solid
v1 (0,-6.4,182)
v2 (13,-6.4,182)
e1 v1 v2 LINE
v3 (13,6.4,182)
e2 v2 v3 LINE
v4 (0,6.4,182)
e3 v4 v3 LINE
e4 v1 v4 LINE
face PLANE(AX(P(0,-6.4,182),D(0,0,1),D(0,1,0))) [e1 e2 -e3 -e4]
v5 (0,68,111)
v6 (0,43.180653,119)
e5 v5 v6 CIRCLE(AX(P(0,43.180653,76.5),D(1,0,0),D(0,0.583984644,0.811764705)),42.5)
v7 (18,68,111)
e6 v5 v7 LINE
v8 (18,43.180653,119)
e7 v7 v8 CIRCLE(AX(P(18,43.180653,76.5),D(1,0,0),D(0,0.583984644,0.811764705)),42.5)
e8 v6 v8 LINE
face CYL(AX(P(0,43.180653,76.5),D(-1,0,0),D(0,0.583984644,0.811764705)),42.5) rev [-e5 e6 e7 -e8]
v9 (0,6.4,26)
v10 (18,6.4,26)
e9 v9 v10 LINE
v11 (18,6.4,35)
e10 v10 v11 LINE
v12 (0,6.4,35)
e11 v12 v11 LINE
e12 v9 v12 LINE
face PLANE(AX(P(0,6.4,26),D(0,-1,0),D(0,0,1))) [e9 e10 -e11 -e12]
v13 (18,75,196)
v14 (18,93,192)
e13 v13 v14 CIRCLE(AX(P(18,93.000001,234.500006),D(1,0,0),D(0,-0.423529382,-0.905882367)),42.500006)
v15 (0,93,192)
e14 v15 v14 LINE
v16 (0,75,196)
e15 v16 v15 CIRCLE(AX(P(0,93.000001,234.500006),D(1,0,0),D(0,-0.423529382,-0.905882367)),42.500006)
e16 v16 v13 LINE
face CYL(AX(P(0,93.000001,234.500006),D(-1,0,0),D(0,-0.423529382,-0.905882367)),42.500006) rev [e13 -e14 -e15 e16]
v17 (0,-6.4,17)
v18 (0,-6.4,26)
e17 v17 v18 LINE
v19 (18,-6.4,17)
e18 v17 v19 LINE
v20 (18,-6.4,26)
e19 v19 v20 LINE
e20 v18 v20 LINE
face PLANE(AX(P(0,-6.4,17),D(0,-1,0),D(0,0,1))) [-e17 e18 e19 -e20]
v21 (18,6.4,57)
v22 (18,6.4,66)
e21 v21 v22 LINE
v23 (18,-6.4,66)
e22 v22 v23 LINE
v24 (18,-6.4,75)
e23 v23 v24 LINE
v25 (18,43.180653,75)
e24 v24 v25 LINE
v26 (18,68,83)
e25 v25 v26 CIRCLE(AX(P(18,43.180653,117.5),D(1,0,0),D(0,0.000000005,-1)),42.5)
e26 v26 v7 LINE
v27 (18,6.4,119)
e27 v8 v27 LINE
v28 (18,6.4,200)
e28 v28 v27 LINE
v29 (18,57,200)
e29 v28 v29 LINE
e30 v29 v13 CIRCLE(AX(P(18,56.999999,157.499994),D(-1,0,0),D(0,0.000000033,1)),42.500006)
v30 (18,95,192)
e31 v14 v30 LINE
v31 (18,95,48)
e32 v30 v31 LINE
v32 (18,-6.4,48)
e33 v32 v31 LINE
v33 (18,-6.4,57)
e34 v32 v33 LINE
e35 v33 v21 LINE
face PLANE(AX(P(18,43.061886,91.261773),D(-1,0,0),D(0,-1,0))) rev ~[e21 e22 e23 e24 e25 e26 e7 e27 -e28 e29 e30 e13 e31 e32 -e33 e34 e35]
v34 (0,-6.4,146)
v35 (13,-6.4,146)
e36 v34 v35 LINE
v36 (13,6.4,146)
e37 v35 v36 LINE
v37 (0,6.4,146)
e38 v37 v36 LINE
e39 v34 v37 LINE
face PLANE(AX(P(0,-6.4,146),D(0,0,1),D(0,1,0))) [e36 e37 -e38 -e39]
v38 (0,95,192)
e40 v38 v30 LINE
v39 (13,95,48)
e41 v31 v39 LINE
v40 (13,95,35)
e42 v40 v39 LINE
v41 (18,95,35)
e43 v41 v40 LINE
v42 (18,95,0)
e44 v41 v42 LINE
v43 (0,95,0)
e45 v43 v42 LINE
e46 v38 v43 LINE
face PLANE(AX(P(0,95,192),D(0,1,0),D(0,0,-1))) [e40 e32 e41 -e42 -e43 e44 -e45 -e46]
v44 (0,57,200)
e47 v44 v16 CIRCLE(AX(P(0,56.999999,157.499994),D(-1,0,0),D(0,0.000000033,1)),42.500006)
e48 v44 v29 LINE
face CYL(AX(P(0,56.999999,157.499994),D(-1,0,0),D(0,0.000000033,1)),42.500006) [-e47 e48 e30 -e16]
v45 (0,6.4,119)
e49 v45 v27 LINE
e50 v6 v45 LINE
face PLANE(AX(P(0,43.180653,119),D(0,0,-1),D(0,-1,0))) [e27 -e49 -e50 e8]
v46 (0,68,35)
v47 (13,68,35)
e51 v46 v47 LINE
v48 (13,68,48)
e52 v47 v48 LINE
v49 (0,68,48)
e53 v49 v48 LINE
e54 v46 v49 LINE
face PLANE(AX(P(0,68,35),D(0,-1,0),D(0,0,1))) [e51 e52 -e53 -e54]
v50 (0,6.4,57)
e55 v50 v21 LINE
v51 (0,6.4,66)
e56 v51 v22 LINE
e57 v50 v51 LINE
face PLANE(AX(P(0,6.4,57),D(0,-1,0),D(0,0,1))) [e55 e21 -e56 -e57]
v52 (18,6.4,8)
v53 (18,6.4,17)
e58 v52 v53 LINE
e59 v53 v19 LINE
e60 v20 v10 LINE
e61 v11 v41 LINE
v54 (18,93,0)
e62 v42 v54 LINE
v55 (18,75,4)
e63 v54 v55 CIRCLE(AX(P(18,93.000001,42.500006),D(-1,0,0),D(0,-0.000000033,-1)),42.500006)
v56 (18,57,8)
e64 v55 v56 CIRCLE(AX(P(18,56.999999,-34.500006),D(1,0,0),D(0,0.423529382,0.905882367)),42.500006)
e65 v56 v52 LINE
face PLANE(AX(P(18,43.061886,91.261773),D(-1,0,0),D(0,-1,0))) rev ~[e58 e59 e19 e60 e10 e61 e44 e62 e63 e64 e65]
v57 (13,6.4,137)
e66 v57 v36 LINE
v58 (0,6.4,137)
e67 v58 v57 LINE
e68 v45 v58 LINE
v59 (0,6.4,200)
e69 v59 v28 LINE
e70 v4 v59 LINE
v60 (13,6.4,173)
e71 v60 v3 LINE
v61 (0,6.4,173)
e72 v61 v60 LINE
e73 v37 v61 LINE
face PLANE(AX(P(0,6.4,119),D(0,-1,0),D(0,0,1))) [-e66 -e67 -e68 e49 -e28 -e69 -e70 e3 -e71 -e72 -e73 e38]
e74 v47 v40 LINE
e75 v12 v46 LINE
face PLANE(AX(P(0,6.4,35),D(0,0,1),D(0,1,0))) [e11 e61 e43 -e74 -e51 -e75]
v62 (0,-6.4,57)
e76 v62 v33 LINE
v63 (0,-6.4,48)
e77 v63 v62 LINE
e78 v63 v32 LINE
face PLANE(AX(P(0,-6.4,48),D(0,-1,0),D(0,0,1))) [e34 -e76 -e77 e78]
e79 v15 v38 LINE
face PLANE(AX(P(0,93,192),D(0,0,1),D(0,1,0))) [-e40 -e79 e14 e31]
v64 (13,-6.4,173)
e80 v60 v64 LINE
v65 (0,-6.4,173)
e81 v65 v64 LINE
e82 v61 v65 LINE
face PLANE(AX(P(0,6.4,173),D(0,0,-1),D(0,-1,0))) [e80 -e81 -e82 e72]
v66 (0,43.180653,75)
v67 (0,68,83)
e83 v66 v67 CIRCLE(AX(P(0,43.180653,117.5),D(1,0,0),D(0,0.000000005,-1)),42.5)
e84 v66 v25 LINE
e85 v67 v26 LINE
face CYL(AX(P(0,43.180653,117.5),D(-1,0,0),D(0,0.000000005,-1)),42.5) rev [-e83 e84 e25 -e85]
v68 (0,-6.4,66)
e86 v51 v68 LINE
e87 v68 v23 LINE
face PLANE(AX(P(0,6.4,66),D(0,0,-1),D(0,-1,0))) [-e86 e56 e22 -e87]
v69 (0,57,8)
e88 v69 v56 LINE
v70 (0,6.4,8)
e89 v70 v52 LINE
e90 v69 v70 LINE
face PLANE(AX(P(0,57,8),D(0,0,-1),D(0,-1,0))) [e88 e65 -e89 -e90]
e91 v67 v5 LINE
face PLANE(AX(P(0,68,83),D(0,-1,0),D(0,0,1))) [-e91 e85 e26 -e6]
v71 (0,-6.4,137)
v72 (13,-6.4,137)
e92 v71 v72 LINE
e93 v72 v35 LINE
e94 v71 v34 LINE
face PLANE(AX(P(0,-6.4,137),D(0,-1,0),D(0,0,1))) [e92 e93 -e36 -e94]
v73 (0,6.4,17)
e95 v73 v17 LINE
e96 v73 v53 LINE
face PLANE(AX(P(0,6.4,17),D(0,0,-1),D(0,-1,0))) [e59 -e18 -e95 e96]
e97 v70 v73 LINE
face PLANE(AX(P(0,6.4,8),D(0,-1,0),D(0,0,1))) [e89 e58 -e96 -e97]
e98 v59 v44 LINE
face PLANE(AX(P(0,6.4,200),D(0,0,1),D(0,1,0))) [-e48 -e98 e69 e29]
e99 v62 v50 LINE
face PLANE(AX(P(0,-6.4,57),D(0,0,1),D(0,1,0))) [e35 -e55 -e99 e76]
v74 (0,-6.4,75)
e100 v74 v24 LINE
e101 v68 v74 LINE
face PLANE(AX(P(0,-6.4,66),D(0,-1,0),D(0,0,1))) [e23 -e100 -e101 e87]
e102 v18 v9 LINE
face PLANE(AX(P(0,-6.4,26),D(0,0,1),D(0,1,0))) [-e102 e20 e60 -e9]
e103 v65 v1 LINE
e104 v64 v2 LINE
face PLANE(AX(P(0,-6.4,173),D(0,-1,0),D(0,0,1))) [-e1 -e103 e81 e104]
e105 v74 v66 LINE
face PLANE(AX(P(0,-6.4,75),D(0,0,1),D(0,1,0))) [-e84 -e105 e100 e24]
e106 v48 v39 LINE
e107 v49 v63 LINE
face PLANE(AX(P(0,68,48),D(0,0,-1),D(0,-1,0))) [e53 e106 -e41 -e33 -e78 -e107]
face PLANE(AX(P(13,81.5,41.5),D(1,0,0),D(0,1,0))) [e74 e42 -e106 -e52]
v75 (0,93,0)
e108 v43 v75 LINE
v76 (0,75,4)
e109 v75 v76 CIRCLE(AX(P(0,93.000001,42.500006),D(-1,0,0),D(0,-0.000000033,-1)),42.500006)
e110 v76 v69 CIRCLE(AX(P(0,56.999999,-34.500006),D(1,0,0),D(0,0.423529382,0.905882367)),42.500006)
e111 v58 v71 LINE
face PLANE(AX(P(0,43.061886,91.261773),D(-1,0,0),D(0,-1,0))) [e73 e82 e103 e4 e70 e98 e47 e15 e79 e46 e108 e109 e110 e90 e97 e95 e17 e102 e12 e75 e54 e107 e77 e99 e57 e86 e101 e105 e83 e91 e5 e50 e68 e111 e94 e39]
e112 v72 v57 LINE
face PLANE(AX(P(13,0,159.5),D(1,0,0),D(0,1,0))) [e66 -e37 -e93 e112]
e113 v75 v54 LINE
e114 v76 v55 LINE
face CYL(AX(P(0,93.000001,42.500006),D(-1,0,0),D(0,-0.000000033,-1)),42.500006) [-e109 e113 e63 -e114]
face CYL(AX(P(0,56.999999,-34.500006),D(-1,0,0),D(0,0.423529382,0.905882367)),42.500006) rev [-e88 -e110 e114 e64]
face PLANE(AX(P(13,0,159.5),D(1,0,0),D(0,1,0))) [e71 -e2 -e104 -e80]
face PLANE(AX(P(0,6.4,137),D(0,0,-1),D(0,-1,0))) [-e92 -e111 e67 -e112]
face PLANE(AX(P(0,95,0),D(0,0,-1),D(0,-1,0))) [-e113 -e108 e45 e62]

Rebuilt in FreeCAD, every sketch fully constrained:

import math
import FreeCAD as App
import Part
import Sketcher
from FreeCAD import Vector


def add_polygon(sketch, points):
    """Adds a closed chain of lines whose ends are joined by coincident constraints."""
    first, n = sketch.GeometryCount, len(points)
    for a, b in zip(points, points[1:] + points[:1]):
        sketch.addGeometry(Part.LineSegment(App.Vector(*a, 0), App.Vector(*b, 0)), False)
    for i in range(n):
        sketch.addConstraint(Sketcher.Constraint("Coincident", first + i, 2, first + (i + 1) % n, 1))

doc = App.newDocument("Part")
body = doc.addObject("PartDesign::Body", "Body")

sketch1 = doc.addObject("Sketcher::SketchObject", "Sketch")
body.addObject(sketch1)
sketch1.AttachmentSupport = (doc.YZ_Plane, [""])
sketch1.MapMode = "FlatFace"
sketch1.addGeometry(Part.ArcOfCircle(Part.Circle(Vector(93, 234.5, 0), Vector(0, 0, 1), 42.5), math.radians(-115), math.radians(-90)), False)
sketch1.addGeometry(Part.ArcOfCircle(Part.Circle(Vector(57, 157.5, 0), Vector(0, 0, 1), 42.5), math.radians(65), math.radians(90)), False)
sketch1.addGeometry(Part.LineSegment(Vector(57, 200, 0), Vector(6.4, 200, 0)), False)
sketch1.addGeometry(Part.LineSegment(Vector(6.4, 200, 0), Vector(6.4, 182, 0)), False)
sketch1.addGeometry(Part.LineSegment(Vector(6.4, 182, 0), Vector(-6.4, 182, 0)), False)
sketch1.addGeometry(Part.LineSegment(Vector(-6.4, 182, 0), Vector(-6.4, 173, 0)), False)
sketch1.addGeometry(Part.LineSegment(Vector(-6.4, 173, 0), Vector(6.4, 173, 0)), False)
sketch1.addGeometry(Part.LineSegment(Vector(6.4, 173, 0), Vector(6.4, 146, 0)), False)
sketch1.addGeometry(Part.LineSegment(Vector(6.4, 146, 0), Vector(-6.4, 146, 0)), False)
sketch1.addGeometry(Part.LineSegment(Vector(-6.4, 146, 0), Vector(-6.4, 137, 0)), False)
sketch1.addGeometry(Part.LineSegment(Vector(-6.4, 137, 0), Vector(6.4, 137, 0)), False)
sketch1.addGeometry(Part.LineSegment(Vector(6.4, 137, 0), Vector(6.4, 119, 0)), False)
sketch1.addGeometry(Part.LineSegment(Vector(6.4, 119, 0), Vector(43.2, 119, 0)), False)
sketch1.addGeometry(Part.ArcOfCircle(Part.Circle(Vector(43.2, 76.5, 0), Vector(0, 0, 1), 42.5), math.radians(54), math.radians(90)), False)
sketch1.addGeometry(Part.LineSegment(Vector(68, 111, 0), Vector(68, 83, 0)), False)
sketch1.addGeometry(Part.ArcOfCircle(Part.Circle(Vector(43.2, 117.5, 0), Vector(0, 0, 1), 42.5), math.radians(-90), math.radians(-54)), False)
sketch1.addGeometry(Part.LineSegment(Vector(43.2, 75, 0), Vector(-6.4, 75, 0)), False)
sketch1.addGeometry(Part.LineSegment(Vector(-6.4, 75, 0), Vector(-6.4, 66, 0)), False)
sketch1.addGeometry(Part.LineSegment(Vector(-6.4, 66, 0), Vector(6.4, 66, 0)), False)
sketch1.addGeometry(Part.LineSegment(Vector(6.4, 66, 0), Vector(6.4, 57, 0)), False)
sketch1.addGeometry(Part.LineSegment(Vector(6.4, 57, 0), Vector(-6.4, 57, 0)), False)
sketch1.addGeometry(Part.LineSegment(Vector(-6.4, 57, 0), Vector(-6.4, 48, 0)), False)
sketch1.addGeometry(Part.LineSegment(Vector(-6.4, 48, 0), Vector(68, 48, 0)), False)
sketch1.addGeometry(Part.LineSegment(Vector(68, 48, 0), Vector(68, 35, 0)), False)
sketch1.addGeometry(Part.LineSegment(Vector(68, 35, 0), Vector(6.4, 35, 0)), False)
sketch1.addGeometry(Part.LineSegment(Vector(6.4, 35, 0), Vector(6.4, 26, 0)), False)
sketch1.addGeometry(Part.LineSegment(Vector(6.4, 26, 0), Vector(-6.4, 26, 0)), False)
sketch1.addGeometry(Part.LineSegment(Vector(-6.4, 26, 0), Vector(-6.4, 17, 0)), False)
sketch1.addGeometry(Part.LineSegment(Vector(-6.4, 17, 0), Vector(6.4, 17, 0)), False)
sketch1.addGeometry(Part.LineSegment(Vector(6.4, 17, 0), Vector(6.4, 8, 0)), False)
sketch1.addGeometry(Part.LineSegment(Vector(6.4, 8, 0), Vector(57, 8, 0)), False)
sketch1.addGeometry(Part.ArcOfCircle(Part.Circle(Vector(57, -34.5, 0), Vector(0, 0, 1), 42.5), math.radians(65), math.radians(90)), False)
sketch1.addGeometry(Part.ArcOfCircle(Part.Circle(Vector(93, 42.5, 0), Vector(0, 0, 1), 42.5), math.radians(-115), math.radians(-90)), False)
sketch1.addGeometry(Part.LineSegment(Vector(93, 0, 0), Vector(95, 0, 0)), False)
sketch1.addGeometry(Part.LineSegment(Vector(95, 0, 0), Vector(95, 192, 0)), False)
sketch1.addGeometry(Part.LineSegment(Vector(95, 192, 0), Vector(93, 192, 0)), False)
sketch1.addConstraint(Sketcher.Constraint("Tangent", 0, 1, 1, 1))
sketch1.addConstraint(Sketcher.Constraint("Tangent", 1, 2, 2, 1))
sketch1.addConstraint(Sketcher.Constraint("Coincident", 2, 2, 3, 1))
sketch1.addConstraint(Sketcher.Constraint("Coincident", 3, 2, 4, 1))
sketch1.addConstraint(Sketcher.Constraint("Coincident", 4, 2, 5, 1))
sketch1.addConstraint(Sketcher.Constraint("Coincident", 5, 2, 6, 1))
sketch1.addConstraint(Sketcher.Constraint("Coincident", 6, 2, 7, 1))
sketch1.addConstraint(Sketcher.Constraint("Coincident", 7, 2, 8, 1))
sketch1.addConstraint(Sketcher.Constraint("Coincident", 8, 2, 9, 1))
sketch1.addConstraint(Sketcher.Constraint("Coincident", 9, 2, 10, 1))
sketch1.addConstraint(Sketcher.Constraint("Coincident", 10, 2, 11, 1))
sketch1.addConstraint(Sketcher.Constraint("Coincident", 11, 2, 12, 1))
sketch1.addConstraint(Sketcher.Constraint("Tangent", 12, 2, 13, 2))
sketch1.addConstraint(Sketcher.Constraint("Coincident", 13, 1, 14, 1))
sketch1.addConstraint(Sketcher.Constraint("Coincident", 14, 2, 15, 2))
sketch1.addConstraint(Sketcher.Constraint("Tangent", 15, 1, 16, 1))
sketch1.addConstraint(Sketcher.Constraint("Coincident", 16, 2, 17, 1))
sketch1.addConstraint(Sketcher.Constraint("Coincident", 17, 2, 18, 1))
sketch1.addConstraint(Sketcher.Constraint("Coincident", 18, 2, 19, 1))
sketch1.addConstraint(Sketcher.Constraint("Coincident", 19, 2, 20, 1))
sketch1.addConstraint(Sketcher.Constraint("Coincident", 20, 2, 21, 1))
sketch1.addConstraint(Sketcher.Constraint("Coincident", 21, 2, 22, 1))
sketch1.addConstraint(Sketcher.Constraint("Coincident", 22, 2, 23, 1))
sketch1.addConstraint(Sketcher.Constraint("Coincident", 23, 2, 24, 1))
sketch1.addConstraint(Sketcher.Constraint("Coincident", 24, 2, 25, 1))
sketch1.addConstraint(Sketcher.Constraint("Coincident", 25, 2, 26, 1))
sketch1.addConstraint(Sketcher.Constraint("Coincident", 26, 2, 27, 1))
sketch1.addConstraint(Sketcher.Constraint("Coincident", 27, 2, 28, 1))
sketch1.addConstraint(Sketcher.Constraint("Coincident", 28, 2, 29, 1))
sketch1.addConstraint(Sketcher.Constraint("Coincident", 29, 2, 30, 1))
sketch1.addConstraint(Sketcher.Constraint("Tangent", 30, 2, 31, 2))
sketch1.addConstraint(Sketcher.Constraint("Tangent", 31, 1, 32, 1))
sketch1.addConstraint(Sketcher.Constraint("Tangent", 32, 2, 33, 1))
sketch1.addConstraint(Sketcher.Constraint("Coincident", 33, 2, 34, 1))
sketch1.addConstraint(Sketcher.Constraint("Coincident", 34, 2, 35, 1))
sketch1.addConstraint(Sketcher.Constraint("Tangent", 35, 2, 0, 2))
sketch1.addConstraint(Sketcher.Constraint("Horizontal", 2))
sketch1.addConstraint(Sketcher.Constraint("Vertical", 3))
sketch1.addConstraint(Sketcher.Constraint("Horizontal", 4))
sketch1.addConstraint(Sketcher.Constraint("Vertical", 5))
sketch1.addConstraint(Sketcher.Constraint("Horizontal", 6))
sketch1.addConstraint(Sketcher.Constraint("Vertical", 7))
sketch1.addConstraint(Sketcher.Constraint("Horizontal", 8))
sketch1.addConstraint(Sketcher.Constraint("Vertical", 9))
sketch1.addConstraint(Sketcher.Constraint("Horizontal", 10))
sketch1.addConstraint(Sketcher.Constraint("Vertical", 11))
sketch1.addConstraint(Sketcher.Constraint("Horizontal", 12))
sketch1.addConstraint(Sketcher.Constraint("Vertical", 14))
sketch1.addConstraint(Sketcher.Constraint("Horizontal", 16))
sketch1.addConstraint(Sketcher.Constraint("Vertical", 17))
sketch1.addConstraint(Sketcher.Constraint("Horizontal", 18))
sketch1.addConstraint(Sketcher.Constraint("Vertical", 19))
sketch1.addConstraint(Sketcher.Constraint("Horizontal", 20))
sketch1.addConstraint(Sketcher.Constraint("Vertical", 21))
sketch1.addConstraint(Sketcher.Constraint("Horizontal", 22))
sketch1.addConstraint(Sketcher.Constraint("Vertical", 23))
sketch1.addConstraint(Sketcher.Constraint("Horizontal", 24))
sketch1.addConstraint(Sketcher.Constraint("Vertical", 25))
sketch1.addConstraint(Sketcher.Constraint("Horizontal", 26))
sketch1.addConstraint(Sketcher.Constraint("Vertical", 27))
sketch1.addConstraint(Sketcher.Constraint("Horizontal", 28))
sketch1.addConstraint(Sketcher.Constraint("Vertical", 29))
sketch1.addConstraint(Sketcher.Constraint("Horizontal", 30))
sketch1.addConstraint(Sketcher.Constraint("Horizontal", 33))
sketch1.addConstraint(Sketcher.Constraint("Vertical", 34))
sketch1.addConstraint(Sketcher.Constraint("Horizontal", 35))
sketch1.addConstraint(Sketcher.Constraint("Equal", 0, 1))
sketch1.addConstraint(Sketcher.Constraint("Equal", 13, 15))
sketch1.addConstraint(Sketcher.Constraint("Equal", 1, 31))
sketch1.addConstraint(Sketcher.Constraint("Equal", 31, 32))
sketch1.addConstraint(Sketcher.Constraint("PointOnObject", 32, 2, -1))
sketch1.addConstraint(Sketcher.Constraint("Vertical", 13, 3, 15, 3))
sketch1.addConstraint(Sketcher.Constraint("Vertical", 1, 3, 31, 3))
sketch1.addConstraint(Sketcher.Constraint("Vertical", 0, 3, 32, 3))
sketch1.addConstraint(Sketcher.Constraint("Vertical", 3, 2, 6, 2))
sketch1.addConstraint(Sketcher.Constraint("Vertical", 5, 2, 8, 2))
sketch1.addConstraint(Sketcher.Constraint("Vertical", 7, 2, 10, 2))
sketch1.addConstraint(Sketcher.Constraint("Vertical", 9, 2, 16, 2))
sketch1.addConstraint(Sketcher.Constraint("Vertical", 11, 2, 18, 2))
sketch1.addConstraint(Sketcher.Constraint("Vertical", 17, 2, 20, 2))
sketch1.addConstraint(Sketcher.Constraint("Vertical", 14, 2, 22, 2))
sketch1.addConstraint(Sketcher.Constraint("Vertical", 19, 2, 24, 2))
sketch1.addConstraint(Sketcher.Constraint("Vertical", 21, 2, 26, 2))
sketch1.addConstraint(Sketcher.Constraint("Vertical", 25, 2, 28, 2))
sketch1.addConstraint(Sketcher.Constraint("Equal", 5, 9))
sketch1.addConstraint(Sketcher.Constraint("Equal", 3, 11))
sketch1.addConstraint(Sketcher.Constraint("Equal", 9, 17))
sketch1.addConstraint(Sketcher.Constraint("Equal", 17, 19))
sketch1.addConstraint(Sketcher.Constraint("Equal", 19, 21))
sketch1.addConstraint(Sketcher.Constraint("Equal", 21, 25))
sketch1.addConstraint(Sketcher.Constraint("Equal", 25, 27))
sketch1.addConstraint(Sketcher.Constraint("Equal", 27, 29))
sketch1.addConstraint(Sketcher.Constraint("Radius", 13, 42.5))
sketch1.addConstraint(Sketcher.Constraint("DistanceX", 33, 1, 33, 2, 2.0))
sketch1.addConstraint(Sketcher.Constraint("DistanceY", 3, 2, 3, 1, 18.0))
sketch1.addConstraint(Sketcher.Constraint("DistanceY", 5, 2, 5, 1, 9.0))
sketch1.addConstraint(Sketcher.Constraint("DistanceY", 7, 2, 7, 1, 27.0))
sketch1.addConstraint(Sketcher.Constraint("DistanceY", 14, 2, 14, 1, 28.0))
sketch1.addConstraint(Sketcher.Constraint("DistanceY", 23, 2, 23, 1, 13.0))
sketch1.addConstraint(Sketcher.Constraint("DistanceY", 34, 1, 34, 2, 192.0))
sketch1.addConstraint(Sketcher.Constraint("DistanceX", 2, 2, 2, 1, 50.6))
sketch1.addConstraint(Sketcher.Constraint("DistanceX", 4, 2, 4, 1, 12.8))
sketch1.addConstraint(Sketcher.Constraint("DistanceX", 22, 1, 22, 2, 74.4))
sketch1.addConstraint(Sketcher.Constraint("DistanceX", -1, 1, 0, 3, 93.000001))
sketch1.addConstraint(Sketcher.Constraint("DistanceX", -1, 1, 1, 3, 56.999999))
sketch1.addConstraint(Sketcher.Constraint("DistanceY", -1, 1, 1, 2, 200.0))
pad1 = doc.addObject("PartDesign::Pad", "Pad")
body.addObject(pad1)
pad1.Profile = sketch1
pad1.Length = 18

sketch2 = doc.addObject("Sketcher::SketchObject", "Sketch001")
body.addObject(sketch2)
sketch2.AttachmentSupport = (doc.YZ_Plane, [""])
sketch2.MapMode = "FlatFace"
sketch2.AttachmentOffset = App.Placement(Vector(0, 0, 18), App.Rotation())
add_polygon(sketch2, [(-6, 182), (-6, 137), (6, 137), (6, 182)])
sketch2.addConstraint(Sketcher.Constraint("Vertical", 0))
sketch2.addConstraint(Sketcher.Constraint("Horizontal", 1))
sketch2.addConstraint(Sketcher.Constraint("Vertical", 2))
sketch2.addConstraint(Sketcher.Constraint("Horizontal", 3))
sketch2.addConstraint(Sketcher.Constraint("DistanceY", 0, 2, 0, 1, 45.0))
sketch2.addConstraint(Sketcher.Constraint("DistanceX", 1, 1, 1, 2, 12.8))
sketch2.addConstraint(Sketcher.Constraint("DistanceY", -1, 1, 0, 2, 137.0))
sketch2.addConstraint(Sketcher.Constraint("DistanceX", 0, 2, -1, 1, 6.4))
pocket1 = doc.addObject("PartDesign::Pocket", "Pocket")
body.addObject(pocket1)
pocket1.Profile = sketch2
pocket1.Length = 5

sketch3 = doc.addObject("Sketcher::SketchObject", "Sketch002")
body.addObject(sketch3)
sketch3.AttachmentSupport = (doc.YZ_Plane, [""])
sketch3.MapMode = "FlatFace"
sketch3.AttachmentOffset = App.Placement(Vector(0, 0, 18), App.Rotation())
add_polygon(sketch3, [(68, 48), (68, 35), (95, 35), (95, 48)])
sketch3.addConstraint(Sketcher.Constraint("Vertical", 0))
sketch3.addConstraint(Sketcher.Constraint("Horizontal", 1))
sketch3.addConstraint(Sketcher.Constraint("Vertical", 2))
sketch3.addConstraint(Sketcher.Constraint("Horizontal", 3))
sketch3.addConstraint(Sketcher.Constraint("DistanceX", 1, 1, 1, 2, 27.0))
sketch3.addConstraint(Sketcher.Constraint("DistanceY", 0, 2, 0, 1, 13.0))
sketch3.addConstraint(Sketcher.Constraint("DistanceX", -1, 1, 0, 2, 68.0))
sketch3.addConstraint(Sketcher.Constraint("DistanceY", -1, 1, 0, 2, 35.0))
pocket2 = doc.addObject("PartDesign::Pocket", "Pocket001")
body.addObject(pocket2)
pocket2.Profile = sketch3
pocket2.Length = 5

doc.recompute()
